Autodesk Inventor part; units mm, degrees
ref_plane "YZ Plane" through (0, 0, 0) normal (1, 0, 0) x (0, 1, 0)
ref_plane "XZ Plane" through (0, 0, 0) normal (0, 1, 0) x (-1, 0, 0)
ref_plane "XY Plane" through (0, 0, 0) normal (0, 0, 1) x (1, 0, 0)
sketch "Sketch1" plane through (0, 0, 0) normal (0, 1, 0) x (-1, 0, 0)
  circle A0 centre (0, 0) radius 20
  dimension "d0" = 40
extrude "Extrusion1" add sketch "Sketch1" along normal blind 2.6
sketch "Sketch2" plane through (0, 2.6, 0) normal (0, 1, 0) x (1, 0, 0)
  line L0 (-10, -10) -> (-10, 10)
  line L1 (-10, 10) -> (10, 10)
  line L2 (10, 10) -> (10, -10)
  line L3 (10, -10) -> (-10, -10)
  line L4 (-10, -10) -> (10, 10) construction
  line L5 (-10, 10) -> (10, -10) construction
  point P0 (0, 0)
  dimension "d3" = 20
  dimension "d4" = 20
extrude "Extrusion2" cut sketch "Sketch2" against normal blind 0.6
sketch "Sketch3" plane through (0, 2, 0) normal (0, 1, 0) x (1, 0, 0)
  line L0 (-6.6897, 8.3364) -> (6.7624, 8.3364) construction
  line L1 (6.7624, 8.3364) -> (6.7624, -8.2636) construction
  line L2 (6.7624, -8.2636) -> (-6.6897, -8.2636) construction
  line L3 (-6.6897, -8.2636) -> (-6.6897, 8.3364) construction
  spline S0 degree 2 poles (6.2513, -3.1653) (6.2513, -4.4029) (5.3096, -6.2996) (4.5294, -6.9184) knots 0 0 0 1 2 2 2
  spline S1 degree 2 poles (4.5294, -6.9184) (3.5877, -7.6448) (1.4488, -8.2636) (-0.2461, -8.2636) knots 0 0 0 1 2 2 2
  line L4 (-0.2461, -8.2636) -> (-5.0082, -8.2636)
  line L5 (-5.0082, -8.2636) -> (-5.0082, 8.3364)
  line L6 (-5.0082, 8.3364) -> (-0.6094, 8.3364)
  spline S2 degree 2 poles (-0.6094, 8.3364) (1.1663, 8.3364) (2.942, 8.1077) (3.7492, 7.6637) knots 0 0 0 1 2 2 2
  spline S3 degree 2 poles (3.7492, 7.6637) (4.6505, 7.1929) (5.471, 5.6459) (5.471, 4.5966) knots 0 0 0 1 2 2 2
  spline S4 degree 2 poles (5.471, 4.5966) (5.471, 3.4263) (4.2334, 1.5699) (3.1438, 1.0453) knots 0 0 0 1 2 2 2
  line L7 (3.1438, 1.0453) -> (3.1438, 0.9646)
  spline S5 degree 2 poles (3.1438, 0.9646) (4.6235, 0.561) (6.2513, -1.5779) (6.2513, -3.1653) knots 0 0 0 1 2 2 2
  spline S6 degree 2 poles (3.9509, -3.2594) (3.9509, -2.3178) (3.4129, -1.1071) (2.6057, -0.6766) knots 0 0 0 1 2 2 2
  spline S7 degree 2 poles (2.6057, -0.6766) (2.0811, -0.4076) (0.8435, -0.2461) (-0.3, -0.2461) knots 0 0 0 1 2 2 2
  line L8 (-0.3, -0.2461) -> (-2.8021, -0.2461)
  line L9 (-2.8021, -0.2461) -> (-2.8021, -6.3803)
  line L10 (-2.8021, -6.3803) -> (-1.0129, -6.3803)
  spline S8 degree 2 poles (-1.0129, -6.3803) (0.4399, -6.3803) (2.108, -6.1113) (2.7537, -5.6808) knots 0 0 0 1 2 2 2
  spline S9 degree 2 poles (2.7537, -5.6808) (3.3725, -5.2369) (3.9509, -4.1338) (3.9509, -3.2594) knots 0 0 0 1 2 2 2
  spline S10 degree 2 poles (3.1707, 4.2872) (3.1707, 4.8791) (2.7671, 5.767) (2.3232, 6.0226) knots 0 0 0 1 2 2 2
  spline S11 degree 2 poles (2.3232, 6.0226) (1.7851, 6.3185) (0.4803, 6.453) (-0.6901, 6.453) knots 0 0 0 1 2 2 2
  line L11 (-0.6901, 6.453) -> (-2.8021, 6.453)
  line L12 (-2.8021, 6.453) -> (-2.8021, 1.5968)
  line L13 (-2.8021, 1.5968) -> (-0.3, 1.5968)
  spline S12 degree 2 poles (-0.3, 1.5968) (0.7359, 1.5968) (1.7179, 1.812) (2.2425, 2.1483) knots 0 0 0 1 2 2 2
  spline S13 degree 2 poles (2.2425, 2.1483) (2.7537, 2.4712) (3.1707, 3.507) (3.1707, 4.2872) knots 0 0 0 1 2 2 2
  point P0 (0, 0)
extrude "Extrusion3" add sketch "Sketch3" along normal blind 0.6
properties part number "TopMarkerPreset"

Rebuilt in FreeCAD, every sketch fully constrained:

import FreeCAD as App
import Part
import Sketcher

doc = App.newDocument("Part")
body = doc.addObject("PartDesign::Body", "Body")

sketch1 = doc.addObject("Sketcher::SketchObject", "Sketch")
body.addObject(sketch1)
sketch1.AttachmentSupport = (doc.XZ_Plane, [""])
sketch1.MapMode = "FlatFace"
sketch1.addGeometry(Part.Circle(App.Vector(0, 0, 0), App.Vector(0, 0, 1), 20), False)
sketch1.addConstraint(Sketcher.Constraint("Coincident", 0, 3, -1, 1))
sketch1.addConstraint(Sketcher.Constraint("Diameter", 0, 40.0))
pad1 = doc.addObject("PartDesign::Pad", "Pad")
body.addObject(pad1)
pad1.Profile = sketch1
pad1.Length = 2.6
pad1.Reversed = True

sketch2 = doc.addObject("Sketcher::SketchObject", "Sketch001")
body.addObject(sketch2)
sketch2.AttachmentSupport = (doc.XZ_Plane, [""])
sketch2.MapMode = "FlatFace"
sketch2.AttachmentOffset = App.Placement(App.Vector(0, 0, -2.6), App.Rotation())
sketch2.addGeometry(Part.LineSegment(App.Vector(-10, -10, 0), App.Vector(-10, 10, 0)), False)
sketch2.addGeometry(Part.LineSegment(App.Vector(-10, 10, 0), App.Vector(10, 10, 0)), False)
sketch2.addGeometry(Part.LineSegment(App.Vector(10, 10, 0), App.Vector(10, -10, 0)), False)
sketch2.addGeometry(Part.LineSegment(App.Vector(10, -10, 0), App.Vector(-10, -10, 0)), False)
sketch2.addConstraint(Sketcher.Constraint("Coincident", 0, 2, 1, 1))
sketch2.addConstraint(Sketcher.Constraint("Coincident", 1, 2, 2, 1))
sketch2.addConstraint(Sketcher.Constraint("Coincident", 2, 2, 3, 1))
sketch2.addConstraint(Sketcher.Constraint("Coincident", 3, 2, 0, 1))
sketch2.addConstraint(Sketcher.Constraint("Vertical", 0))
sketch2.addConstraint(Sketcher.Constraint("Horizontal", 1))
sketch2.addConstraint(Sketcher.Constraint("Vertical", 2))
sketch2.addConstraint(Sketcher.Constraint("Horizontal", 3))
sketch2.addConstraint(Sketcher.Constraint("Symmetric", 0, 2, 2, 2, -1, 1))
sketch2.addConstraint(Sketcher.Constraint("Equal", 3, 0))
sketch2.addConstraint(Sketcher.Constraint("DistanceX", 1, 1, 1, 2, 20.0))
pocket1 = doc.addObject("PartDesign::Pocket", "Pocket")
body.addObject(pocket1)
pocket1.Profile = sketch2
pocket1.Length = 0.6
pocket1.Reversed = True

sketch3 = doc.addObject("Sketcher::SketchObject", "Sketch002")
body.addObject(sketch3)
sketch3.AttachmentSupport = (doc.XZ_Plane, [""])
sketch3.MapMode = "FlatFace"
sketch3.AttachmentOffset = App.Placement(App.Vector(0, 0, -2), App.Rotation())
sketch3.addGeometry(Part.BSplineCurve([App.Vector(6.2513, 3.1653, 0), App.Vector(6.2513, 4.4029, 0), App.Vector(5.3096, 6.2996, 0), App.Vector(4.5294, 6.9184, 0)], [3, 1, 3], [0, 1, 2], False, 2, [1, 1, 1, 1], False), False)
sketch3.addGeometry(Part.BSplineCurve([App.Vector(3.1438, -0.9646, 0), App.Vector(4.6235, -0.561, 0), App.Vector(6.2513, 1.5779, 0), App.Vector(6.2513, 3.1653, 0)], [3, 1, 3], [0, 1, 2], False, 2, [1, 1, 1, 1], False), False)
sketch3.addGeometry(Part.LineSegment(App.Vector(3.1438, -0.9646, 0), App.Vector(3.1438, -1.0453, 0)), False)
sketch3.addGeometry(Part.BSplineCurve([App.Vector(5.471, -4.5966, 0), App.Vector(5.471, -3.4263, 0), App.Vector(4.2334, -1.5699, 0), App.Vector(3.1438, -1.0453, 0)], [3, 1, 3], [0, 1, 2], False, 2, [1, 1, 1, 1], False), False)
sketch3.addGeometry(Part.BSplineCurve([App.Vector(3.7492, -7.6637, 0), App.Vector(4.6505, -7.1929, 0), App.Vector(5.471, -5.6459, 0), App.Vector(5.471, -4.5966, 0)], [3, 1, 3], [0, 1, 2], False, 2, [1, 1, 1, 1], False), False)
sketch3.addGeometry(Part.BSplineCurve([App.Vector(-0.6094, -8.3364, 0), App.Vector(1.1663, -8.3364, 0), App.Vector(2.942, -8.1077, 0), App.Vector(3.7492, -7.6637, 0)], [3, 1, 3], [0, 1, 2], False, 2, [1, 1, 1, 1], False), False)
sketch3.addGeometry(Part.LineSegment(App.Vector(-0.6094, -8.3364, 0), App.Vector(-5.0082, -8.3364, 0)), False)
sketch3.addGeometry(Part.LineSegment(App.Vector(-5.0082, -8.3364, 0), App.Vector(-5.0082, 8.2636, 0)), False)
sketch3.addGeometry(Part.LineSegment(App.Vector(-5.0082, 8.2636, 0), App.Vector(-0.2461, 8.2636, 0)), False)
sketch3.addGeometry(Part.BSplineCurve([App.Vector(4.5294, 6.9184, 0), App.Vector(3.5877, 7.6448, 0), App.Vector(1.4488, 8.2636, 0), App.Vector(-0.2461, 8.2636, 0)], [3, 1, 3], [0, 1, 2], False, 2, [1, 1, 1, 1], False), False)
sketch3.addGeometry(Part.BSplineCurve([App.Vector(3.9509, 3.2594, 0), App.Vector(3.9509, 2.3178, 0), App.Vector(3.4129, 1.1071, 0), App.Vector(2.6057, 0.6766, 0)], [3, 1, 3], [0, 1, 2], False, 2, [1, 1, 1, 1], False), False)
sketch3.addGeometry(Part.BSplineCurve([App.Vector(2.7537, 5.6808, 0), App.Vector(3.3725, 5.2369, 0), App.Vector(3.9509, 4.1338, 0), App.Vector(3.9509, 3.2594, 0)], [3, 1, 3], [0, 1, 2], False, 2, [1, 1, 1, 1], False), False)
sketch3.addGeometry(Part.BSplineCurve([App.Vector(-1.0129, 6.3803, 0), App.Vector(0.4399, 6.3803, 0), App.Vector(2.108, 6.1113, 0), App.Vector(2.7537, 5.6808, 0)], [3, 1, 3], [0, 1, 2], False, 2, [1, 1, 1, 1], False), False)
sketch3.addGeometry(Part.LineSegment(App.Vector(-1.0129, 6.3803, 0), App.Vector(-2.8021, 6.3803, 0)), False)
sketch3.addGeometry(Part.LineSegment(App.Vector(-2.8021, 6.3803, 0), App.Vector(-2.8021, 0.2461, 0)), False)
sketch3.addGeometry(Part.LineSegment(App.Vector(-2.8021, 0.2461, 0), App.Vector(-0.3, 0.2461, 0)), False)
sketch3.addGeometry(Part.BSplineCurve([App.Vector(2.6057, 0.6766, 0), App.Vector(2.0811, 0.4076, 0), App.Vector(0.8435, 0.2461, 0), App.Vector(-0.3, 0.2461, 0)], [3, 1, 3], [0, 1, 2], False, 2, [1, 1, 1, 1], False), False)
sketch3.addGeometry(Part.BSplineCurve([App.Vector(3.1707, -4.2872, 0), App.Vector(3.1707, -4.8791, 0), App.Vector(2.7671, -5.767, 0), App.Vector(2.3232, -6.0226, 0)], [3, 1, 3], [0, 1, 2], False, 2, [1, 1, 1, 1], False), False)
sketch3.addGeometry(Part.BSplineCurve([App.Vector(2.2425, -2.1483, 0), App.Vector(2.7537, -2.4712, 0), App.Vector(3.1707, -3.507, 0), App.Vector(3.1707, -4.2872, 0)], [3, 1, 3], [0, 1, 2], False, 2, [1, 1, 1, 1], False), False)
sketch3.addGeometry(Part.BSplineCurve([App.Vector(-0.3, -1.5968, 0), App.Vector(0.7359, -1.5968, 0), App.Vector(1.7179, -1.812, 0), App.Vector(2.2425, -2.1483, 0)], [3, 1, 3], [0, 1, 2], False, 2, [1, 1, 1, 1], False), False)
sketch3.addGeometry(Part.LineSegment(App.Vector(-0.3, -1.5968, 0), App.Vector(-2.8021, -1.5968, 0)), False)
sketch3.addGeometry(Part.LineSegment(App.Vector(-2.8021, -1.5968, 0), App.Vector(-2.8021, -6.453, 0)), False)
sketch3.addGeometry(Part.LineSegment(App.Vector(-2.8021, -6.453, 0), App.Vector(-0.6901, -6.453, 0)), False)
sketch3.addGeometry(Part.BSplineCurve([App.Vector(2.3232, -6.0226, 0), App.Vector(1.7851, -6.3185, 0), App.Vector(0.4803, -6.453, 0), App.Vector(-0.6901, -6.453, 0)], [3, 1, 3], [0, 1, 2], False, 2, [1, 1, 1, 1], False), False)
sketch3.addConstraint(Sketcher.Constraint("Block", 0))
sketch3.addConstraint(Sketcher.Constraint("Block", 1))
sketch3.addConstraint(Sketcher.Constraint("Block", 3))
sketch3.addConstraint(Sketcher.Constraint("Block", 4))
sketch3.addConstraint(Sketcher.Constraint("Block", 5))
sketch3.addConstraint(Sketcher.Constraint("Block", 9))
sketch3.addConstraint(Sketcher.Constraint("Block", 10))
sketch3.addConstraint(Sketcher.Constraint("Block", 11))
sketch3.addConstraint(Sketcher.Constraint("Block", 12))
sketch3.addConstraint(Sketcher.Constraint("Block", 16))
sketch3.addConstraint(Sketcher.Constraint("Block", 17))
sketch3.addConstraint(Sketcher.Constraint("Block", 18))
sketch3.addConstraint(Sketcher.Constraint("Block", 19))
sketch3.addConstraint(Sketcher.Constraint("Block", 23))
sketch3.addConstraint(Sketcher.Constraint("Coincident", 1, 1, 2, 1))
sketch3.addConstraint(Sketcher.Constraint("Coincident", 2, 2, 3, 2))
sketch3.addConstraint(Sketcher.Constraint("Coincident", 5, 1, 6, 1))
sketch3.addConstraint(Sketcher.Constraint("Coincident", 6, 2, 7, 1))
sketch3.addConstraint(Sketcher.Constraint("Coincident", 7, 2, 8, 1))
sketch3.addConstraint(Sketcher.Constraint("Coincident", 8, 2, 9, 2))
sketch3.addConstraint(Sketcher.Constraint("Coincident", 12, 1, 13, 1))
sketch3.addConstraint(Sketcher.Constraint("Coincident", 13, 2, 14, 1))
sketch3.addConstraint(Sketcher.Constraint("Coincident", 14, 2, 15, 1))
sketch3.addConstraint(Sketcher.Constraint("Coincident", 15, 2, 16, 2))
sketch3.addConstraint(Sketcher.Constraint("Coincident", 19, 1, 20, 1))
sketch3.addConstraint(Sketcher.Constraint("Coincident", 20, 2, 21, 1))
sketch3.addConstraint(Sketcher.Constraint("Coincident", 21, 2, 22, 1))
sketch3.addConstraint(Sketcher.Constraint("Coincident", 22, 2, 23, 2))
sketch3.addConstraint(Sketcher.Constraint("Horizontal", 6))
sketch3.addConstraint(Sketcher.Constraint("Vertical", 7))
sketch3.addConstraint(Sketcher.Constraint("Horizontal", 8))
sketch3.addConstraint(Sketcher.Constraint("Horizontal", 13))
sketch3.addConstraint(Sketcher.Constraint("Vertical", 14))
sketch3.addConstraint(Sketcher.Constraint("Horizontal", 15))
sketch3.addConstraint(Sketcher.Constraint("Horizontal", 20))
sketch3.addConstraint(Sketcher.Constraint("Vertical", 21))
sketch3.addConstraint(Sketcher.Constraint("Horizontal", 22))
sketch3.addConstraint(Sketcher.Constraint("Vertical", 14, 2, 20, 2))
sketch3.addConstraint(Sketcher.Constraint("DistanceX", 8, 1, 8, 2, 4.762))
sketch3.addConstraint(Sketcher.Constraint("DistanceX", 15, 1, 15, 2, 2.502))
pad2 = doc.addObject("PartDesign::Pad", "Pad001")
body.addObject(pad2)
pad2.Profile = sketch3
pad2.Length = 0.6
pad2.Reversed = True

doc.recompute()
